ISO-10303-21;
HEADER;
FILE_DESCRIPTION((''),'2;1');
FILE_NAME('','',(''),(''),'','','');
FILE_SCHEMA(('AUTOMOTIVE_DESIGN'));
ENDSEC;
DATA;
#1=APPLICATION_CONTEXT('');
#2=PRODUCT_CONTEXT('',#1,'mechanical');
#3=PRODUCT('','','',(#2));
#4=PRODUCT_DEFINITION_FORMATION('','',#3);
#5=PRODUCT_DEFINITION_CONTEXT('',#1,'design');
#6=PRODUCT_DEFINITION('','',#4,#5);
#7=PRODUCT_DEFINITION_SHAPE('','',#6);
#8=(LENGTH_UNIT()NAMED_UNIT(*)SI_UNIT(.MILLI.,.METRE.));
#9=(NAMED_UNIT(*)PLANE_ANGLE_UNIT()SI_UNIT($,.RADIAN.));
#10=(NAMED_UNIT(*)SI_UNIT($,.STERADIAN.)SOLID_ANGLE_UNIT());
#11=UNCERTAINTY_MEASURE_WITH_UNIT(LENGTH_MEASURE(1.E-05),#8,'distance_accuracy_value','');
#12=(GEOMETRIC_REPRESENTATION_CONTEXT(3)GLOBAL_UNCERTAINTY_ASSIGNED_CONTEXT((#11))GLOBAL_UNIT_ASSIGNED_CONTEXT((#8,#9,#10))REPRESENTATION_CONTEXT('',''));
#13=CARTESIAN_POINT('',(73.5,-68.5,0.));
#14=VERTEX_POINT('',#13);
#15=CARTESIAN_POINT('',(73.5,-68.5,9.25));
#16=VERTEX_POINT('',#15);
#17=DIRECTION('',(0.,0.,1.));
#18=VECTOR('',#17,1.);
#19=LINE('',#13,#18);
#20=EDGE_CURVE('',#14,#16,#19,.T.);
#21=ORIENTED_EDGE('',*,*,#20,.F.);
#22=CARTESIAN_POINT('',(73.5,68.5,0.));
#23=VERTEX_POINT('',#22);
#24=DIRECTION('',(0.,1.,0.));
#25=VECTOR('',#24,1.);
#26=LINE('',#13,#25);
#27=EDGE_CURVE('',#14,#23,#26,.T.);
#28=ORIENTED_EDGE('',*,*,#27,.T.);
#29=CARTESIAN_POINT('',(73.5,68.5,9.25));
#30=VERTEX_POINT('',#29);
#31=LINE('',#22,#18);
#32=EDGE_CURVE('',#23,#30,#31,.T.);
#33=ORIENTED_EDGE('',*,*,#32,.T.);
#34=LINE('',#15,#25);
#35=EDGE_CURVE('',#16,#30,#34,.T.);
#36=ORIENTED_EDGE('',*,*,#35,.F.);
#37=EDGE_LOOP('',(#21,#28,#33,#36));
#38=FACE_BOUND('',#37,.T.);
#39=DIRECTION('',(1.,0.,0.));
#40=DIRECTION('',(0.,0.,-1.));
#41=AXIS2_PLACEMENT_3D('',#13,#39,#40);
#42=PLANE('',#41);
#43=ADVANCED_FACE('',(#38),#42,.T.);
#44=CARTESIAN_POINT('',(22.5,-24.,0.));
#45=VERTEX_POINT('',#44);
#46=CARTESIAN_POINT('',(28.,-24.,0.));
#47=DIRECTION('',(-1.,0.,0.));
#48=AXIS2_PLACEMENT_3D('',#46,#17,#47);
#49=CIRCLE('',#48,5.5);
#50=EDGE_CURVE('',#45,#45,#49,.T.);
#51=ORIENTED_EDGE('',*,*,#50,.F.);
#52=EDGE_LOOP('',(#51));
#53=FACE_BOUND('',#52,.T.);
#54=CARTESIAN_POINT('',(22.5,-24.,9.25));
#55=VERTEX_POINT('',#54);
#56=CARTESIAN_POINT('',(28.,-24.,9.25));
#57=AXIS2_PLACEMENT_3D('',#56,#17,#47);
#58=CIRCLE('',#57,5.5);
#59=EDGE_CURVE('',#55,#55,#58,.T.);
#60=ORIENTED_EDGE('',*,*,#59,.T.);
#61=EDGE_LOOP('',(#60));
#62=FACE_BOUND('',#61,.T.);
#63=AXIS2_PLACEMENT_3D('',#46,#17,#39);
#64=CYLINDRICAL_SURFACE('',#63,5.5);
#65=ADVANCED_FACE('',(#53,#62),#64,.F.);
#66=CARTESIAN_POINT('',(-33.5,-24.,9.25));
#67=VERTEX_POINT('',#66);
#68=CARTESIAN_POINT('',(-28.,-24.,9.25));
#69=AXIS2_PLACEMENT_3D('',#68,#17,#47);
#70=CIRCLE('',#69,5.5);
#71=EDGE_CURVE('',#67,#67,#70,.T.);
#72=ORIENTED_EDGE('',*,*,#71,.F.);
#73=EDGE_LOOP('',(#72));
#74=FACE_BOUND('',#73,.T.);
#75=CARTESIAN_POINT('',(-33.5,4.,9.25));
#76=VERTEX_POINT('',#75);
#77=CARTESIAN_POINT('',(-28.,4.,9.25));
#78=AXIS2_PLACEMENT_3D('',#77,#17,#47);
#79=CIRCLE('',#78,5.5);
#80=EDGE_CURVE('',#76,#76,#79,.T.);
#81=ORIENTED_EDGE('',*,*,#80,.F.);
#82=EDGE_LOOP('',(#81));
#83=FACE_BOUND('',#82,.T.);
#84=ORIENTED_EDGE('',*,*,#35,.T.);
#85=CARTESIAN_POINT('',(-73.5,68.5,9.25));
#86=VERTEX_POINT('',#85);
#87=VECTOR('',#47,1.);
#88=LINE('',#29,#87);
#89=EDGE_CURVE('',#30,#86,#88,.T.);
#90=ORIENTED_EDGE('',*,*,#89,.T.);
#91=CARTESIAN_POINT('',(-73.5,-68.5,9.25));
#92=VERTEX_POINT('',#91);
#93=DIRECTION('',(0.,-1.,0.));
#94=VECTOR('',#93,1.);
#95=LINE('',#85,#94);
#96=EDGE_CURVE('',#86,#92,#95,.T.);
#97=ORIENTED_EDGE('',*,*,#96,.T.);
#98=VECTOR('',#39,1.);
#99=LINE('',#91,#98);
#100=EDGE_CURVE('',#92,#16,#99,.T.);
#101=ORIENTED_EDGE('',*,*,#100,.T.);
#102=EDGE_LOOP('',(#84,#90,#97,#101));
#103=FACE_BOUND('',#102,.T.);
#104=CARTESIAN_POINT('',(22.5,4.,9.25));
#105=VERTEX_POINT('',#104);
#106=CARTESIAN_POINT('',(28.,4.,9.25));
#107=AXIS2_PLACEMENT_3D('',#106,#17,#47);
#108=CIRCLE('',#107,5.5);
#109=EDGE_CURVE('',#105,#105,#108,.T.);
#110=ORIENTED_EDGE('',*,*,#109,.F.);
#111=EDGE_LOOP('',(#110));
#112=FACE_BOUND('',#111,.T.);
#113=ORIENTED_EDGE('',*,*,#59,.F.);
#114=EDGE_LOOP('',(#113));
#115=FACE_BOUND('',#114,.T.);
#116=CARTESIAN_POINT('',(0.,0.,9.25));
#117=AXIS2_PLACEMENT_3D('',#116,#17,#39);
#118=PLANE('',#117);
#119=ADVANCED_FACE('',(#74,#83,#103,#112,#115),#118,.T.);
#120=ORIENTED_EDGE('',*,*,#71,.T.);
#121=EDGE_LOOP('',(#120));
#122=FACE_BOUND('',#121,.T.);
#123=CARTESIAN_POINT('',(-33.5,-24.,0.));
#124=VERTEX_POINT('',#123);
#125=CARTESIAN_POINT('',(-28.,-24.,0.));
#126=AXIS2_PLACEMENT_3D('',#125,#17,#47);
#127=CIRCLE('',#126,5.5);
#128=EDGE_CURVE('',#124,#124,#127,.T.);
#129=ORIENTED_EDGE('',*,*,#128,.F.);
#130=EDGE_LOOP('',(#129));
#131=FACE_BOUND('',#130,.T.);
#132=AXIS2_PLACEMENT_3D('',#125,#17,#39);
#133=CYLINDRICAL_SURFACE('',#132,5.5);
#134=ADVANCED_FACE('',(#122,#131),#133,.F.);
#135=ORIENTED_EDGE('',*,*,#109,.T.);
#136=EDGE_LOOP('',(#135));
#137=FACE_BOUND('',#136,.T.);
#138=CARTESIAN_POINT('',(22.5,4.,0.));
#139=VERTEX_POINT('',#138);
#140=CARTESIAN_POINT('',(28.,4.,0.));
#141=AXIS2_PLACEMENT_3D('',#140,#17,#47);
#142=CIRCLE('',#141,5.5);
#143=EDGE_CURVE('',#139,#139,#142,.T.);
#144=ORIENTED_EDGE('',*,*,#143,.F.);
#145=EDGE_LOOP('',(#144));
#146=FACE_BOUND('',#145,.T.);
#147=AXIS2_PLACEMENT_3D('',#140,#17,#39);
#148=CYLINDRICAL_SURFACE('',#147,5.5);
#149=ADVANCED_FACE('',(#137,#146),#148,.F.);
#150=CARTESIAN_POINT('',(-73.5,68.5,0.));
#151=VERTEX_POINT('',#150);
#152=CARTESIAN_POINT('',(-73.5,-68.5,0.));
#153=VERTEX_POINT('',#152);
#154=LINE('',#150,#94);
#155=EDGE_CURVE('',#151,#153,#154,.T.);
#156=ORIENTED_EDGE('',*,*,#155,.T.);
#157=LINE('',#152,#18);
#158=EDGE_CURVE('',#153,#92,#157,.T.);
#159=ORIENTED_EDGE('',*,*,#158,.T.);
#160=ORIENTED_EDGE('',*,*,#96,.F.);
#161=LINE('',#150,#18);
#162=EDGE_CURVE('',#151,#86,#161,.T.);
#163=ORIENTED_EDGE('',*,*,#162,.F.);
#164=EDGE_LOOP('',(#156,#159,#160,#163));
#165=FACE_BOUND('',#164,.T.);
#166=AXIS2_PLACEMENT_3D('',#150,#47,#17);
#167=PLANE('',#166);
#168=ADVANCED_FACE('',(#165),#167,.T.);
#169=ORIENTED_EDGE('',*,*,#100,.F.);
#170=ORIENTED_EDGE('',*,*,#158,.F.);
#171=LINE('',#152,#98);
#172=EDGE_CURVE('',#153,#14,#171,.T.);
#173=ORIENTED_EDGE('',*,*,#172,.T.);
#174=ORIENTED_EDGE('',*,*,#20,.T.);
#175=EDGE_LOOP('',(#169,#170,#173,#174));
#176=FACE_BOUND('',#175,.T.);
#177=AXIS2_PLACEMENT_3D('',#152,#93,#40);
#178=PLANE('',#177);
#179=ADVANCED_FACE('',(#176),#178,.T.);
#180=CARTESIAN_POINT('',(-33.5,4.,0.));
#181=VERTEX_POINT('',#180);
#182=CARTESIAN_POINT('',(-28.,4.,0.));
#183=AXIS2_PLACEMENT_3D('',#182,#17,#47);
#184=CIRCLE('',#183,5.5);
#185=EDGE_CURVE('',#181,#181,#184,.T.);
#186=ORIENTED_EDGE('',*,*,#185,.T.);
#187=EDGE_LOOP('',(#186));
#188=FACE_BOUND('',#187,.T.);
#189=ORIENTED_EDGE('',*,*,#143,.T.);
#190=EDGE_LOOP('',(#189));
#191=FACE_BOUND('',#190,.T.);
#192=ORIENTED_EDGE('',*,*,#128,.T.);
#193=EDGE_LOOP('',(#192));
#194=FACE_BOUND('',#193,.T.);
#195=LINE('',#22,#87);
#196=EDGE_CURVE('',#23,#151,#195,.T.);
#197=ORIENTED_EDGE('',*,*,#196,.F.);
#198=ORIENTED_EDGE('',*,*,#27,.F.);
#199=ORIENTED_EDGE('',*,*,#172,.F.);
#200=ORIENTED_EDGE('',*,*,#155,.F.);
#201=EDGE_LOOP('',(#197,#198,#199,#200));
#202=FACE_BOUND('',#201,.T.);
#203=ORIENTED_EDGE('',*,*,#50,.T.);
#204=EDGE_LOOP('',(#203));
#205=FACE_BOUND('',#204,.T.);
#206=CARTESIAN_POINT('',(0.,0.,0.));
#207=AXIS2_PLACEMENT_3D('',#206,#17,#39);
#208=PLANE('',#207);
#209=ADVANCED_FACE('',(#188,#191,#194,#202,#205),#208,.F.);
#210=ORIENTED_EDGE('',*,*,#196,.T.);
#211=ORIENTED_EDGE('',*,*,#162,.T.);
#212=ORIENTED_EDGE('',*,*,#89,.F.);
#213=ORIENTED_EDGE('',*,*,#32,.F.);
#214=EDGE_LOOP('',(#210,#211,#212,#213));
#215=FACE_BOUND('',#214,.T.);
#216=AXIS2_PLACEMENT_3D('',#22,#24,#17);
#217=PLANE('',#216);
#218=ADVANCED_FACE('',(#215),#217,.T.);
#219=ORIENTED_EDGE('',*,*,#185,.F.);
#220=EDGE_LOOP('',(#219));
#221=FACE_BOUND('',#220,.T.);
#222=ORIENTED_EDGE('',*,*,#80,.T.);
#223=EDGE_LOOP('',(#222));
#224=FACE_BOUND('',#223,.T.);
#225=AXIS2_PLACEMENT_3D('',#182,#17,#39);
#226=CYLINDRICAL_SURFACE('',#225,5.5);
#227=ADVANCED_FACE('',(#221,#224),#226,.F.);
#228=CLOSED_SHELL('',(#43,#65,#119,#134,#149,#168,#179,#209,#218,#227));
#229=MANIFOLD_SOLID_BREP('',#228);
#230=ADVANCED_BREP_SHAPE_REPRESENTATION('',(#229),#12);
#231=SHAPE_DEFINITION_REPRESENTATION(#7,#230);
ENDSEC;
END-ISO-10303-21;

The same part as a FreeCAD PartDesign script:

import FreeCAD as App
import Part
import Sketcher
from FreeCAD import Vector
Q = App.Units.Quantity


def add_polygon(sketch, points):
    """Adds a closed chain of lines whose ends are joined by coincident constraints."""
    first, n = sketch.GeometryCount, len(points)
    for a, b in zip(points, points[1:] + points[:1]):
        sketch.addGeometry(Part.LineSegment(App.Vector(*a, 0), App.Vector(*b, 0)), False)
    for i in range(n):
        sketch.addConstraint(Sketcher.Constraint("Coincident", first + i, 2, first + (i + 1) % n, 1))

doc = App.newDocument("Part")
params = doc.addObject("Spreadsheet::Sheet", "Params")
for row, (alias, value) in enumerate([
    ("sketch1_diameter", "11 mm"),
    ("sketch1_width", "147 mm"),
    ("sketch1_height", "137 mm"),
    ("pad1_length", "9.25 mm"),
], start=1):
    params.set(f"A{row}", alias)
    params.set(f"B{row}", "=" + value)
    params.setAlias(f"B{row}", alias)

body = doc.addObject("PartDesign::Body", "Body")

sketch1 = body.newObject("Sketcher::SketchObject", "Sketch")
sketch1.AttachmentSupport = (doc.getObject("XY_Plane"), [""])
sketch1.MapMode = "FlatFace"
sketch1.AttachmentOffset = App.Placement(Vector(0, 0, 9.25), App.Rotation())
add_polygon(sketch1, [(-74, 68), (-74, -68), (74, -68), (74, 68)])
sketch1.addGeometry(Part.Circle(Vector(-28, -24, 0), Vector(0, 0, 1), 6), False)
sketch1.addGeometry(Part.Circle(Vector(28, -24, 0), Vector(0, 0, 1), 6), False)
sketch1.addGeometry(Part.Circle(Vector(-28, 4, 0), Vector(0, 0, 1), 6), False)
sketch1.addGeometry(Part.Circle(Vector(28, 4, 0), Vector(0, 0, 1), 6), False)
sketch1.addConstraint([
    Sketcher.Constraint("Vertical", 0),
    Sketcher.Constraint("Horizontal", 1),
    Sketcher.Constraint("Vertical", 2),
    Sketcher.Constraint("Horizontal", 3),
    Sketcher.Constraint("Equal", 4, 5),
    Sketcher.Constraint("Equal", 5, 6),
    Sketcher.Constraint("Equal", 6, 7),
    Sketcher.Constraint("Symmetric", 0, 2, 2, 2, -1, 1),
    Sketcher.Constraint("Symmetric", 4, 3, 5, 3, -2),
    Sketcher.Constraint("Symmetric", 6, 3, 7, 3, -2),
    Sketcher.Constraint("Vertical", 4, 3, 6, 3),
    Sketcher.Constraint("Diameter", 4, Q("11 mm")),
    Sketcher.Constraint("DistanceX", 1, 1, 1, 2, Q("147 mm")),
    Sketcher.Constraint("DistanceY", 0, 2, 0, 1, Q("137 mm")),
    Sketcher.Constraint("DistanceX", 4, 3, -1, 1, Q("28 mm")),
    Sketcher.Constraint("DistanceY", 4, 3, -1, 1, Q("24 mm")),
    Sketcher.Constraint("DistanceY", -1, 1, 6, 3, Q("4 mm")),
])
sketch1.setExpression("Constraints[15]", "Params.sketch1_diameter")
sketch1.setExpression("Constraints[16]", "Params.sketch1_width")
sketch1.setExpression("Constraints[17]", "Params.sketch1_height")
pad1 = body.newObject("PartDesign::Pad", "Pad")
pad1.Profile = sketch1
pad1.setExpression("Length", "Params.pad1_length")
pad1.Reversed = True

doc.recompute()
